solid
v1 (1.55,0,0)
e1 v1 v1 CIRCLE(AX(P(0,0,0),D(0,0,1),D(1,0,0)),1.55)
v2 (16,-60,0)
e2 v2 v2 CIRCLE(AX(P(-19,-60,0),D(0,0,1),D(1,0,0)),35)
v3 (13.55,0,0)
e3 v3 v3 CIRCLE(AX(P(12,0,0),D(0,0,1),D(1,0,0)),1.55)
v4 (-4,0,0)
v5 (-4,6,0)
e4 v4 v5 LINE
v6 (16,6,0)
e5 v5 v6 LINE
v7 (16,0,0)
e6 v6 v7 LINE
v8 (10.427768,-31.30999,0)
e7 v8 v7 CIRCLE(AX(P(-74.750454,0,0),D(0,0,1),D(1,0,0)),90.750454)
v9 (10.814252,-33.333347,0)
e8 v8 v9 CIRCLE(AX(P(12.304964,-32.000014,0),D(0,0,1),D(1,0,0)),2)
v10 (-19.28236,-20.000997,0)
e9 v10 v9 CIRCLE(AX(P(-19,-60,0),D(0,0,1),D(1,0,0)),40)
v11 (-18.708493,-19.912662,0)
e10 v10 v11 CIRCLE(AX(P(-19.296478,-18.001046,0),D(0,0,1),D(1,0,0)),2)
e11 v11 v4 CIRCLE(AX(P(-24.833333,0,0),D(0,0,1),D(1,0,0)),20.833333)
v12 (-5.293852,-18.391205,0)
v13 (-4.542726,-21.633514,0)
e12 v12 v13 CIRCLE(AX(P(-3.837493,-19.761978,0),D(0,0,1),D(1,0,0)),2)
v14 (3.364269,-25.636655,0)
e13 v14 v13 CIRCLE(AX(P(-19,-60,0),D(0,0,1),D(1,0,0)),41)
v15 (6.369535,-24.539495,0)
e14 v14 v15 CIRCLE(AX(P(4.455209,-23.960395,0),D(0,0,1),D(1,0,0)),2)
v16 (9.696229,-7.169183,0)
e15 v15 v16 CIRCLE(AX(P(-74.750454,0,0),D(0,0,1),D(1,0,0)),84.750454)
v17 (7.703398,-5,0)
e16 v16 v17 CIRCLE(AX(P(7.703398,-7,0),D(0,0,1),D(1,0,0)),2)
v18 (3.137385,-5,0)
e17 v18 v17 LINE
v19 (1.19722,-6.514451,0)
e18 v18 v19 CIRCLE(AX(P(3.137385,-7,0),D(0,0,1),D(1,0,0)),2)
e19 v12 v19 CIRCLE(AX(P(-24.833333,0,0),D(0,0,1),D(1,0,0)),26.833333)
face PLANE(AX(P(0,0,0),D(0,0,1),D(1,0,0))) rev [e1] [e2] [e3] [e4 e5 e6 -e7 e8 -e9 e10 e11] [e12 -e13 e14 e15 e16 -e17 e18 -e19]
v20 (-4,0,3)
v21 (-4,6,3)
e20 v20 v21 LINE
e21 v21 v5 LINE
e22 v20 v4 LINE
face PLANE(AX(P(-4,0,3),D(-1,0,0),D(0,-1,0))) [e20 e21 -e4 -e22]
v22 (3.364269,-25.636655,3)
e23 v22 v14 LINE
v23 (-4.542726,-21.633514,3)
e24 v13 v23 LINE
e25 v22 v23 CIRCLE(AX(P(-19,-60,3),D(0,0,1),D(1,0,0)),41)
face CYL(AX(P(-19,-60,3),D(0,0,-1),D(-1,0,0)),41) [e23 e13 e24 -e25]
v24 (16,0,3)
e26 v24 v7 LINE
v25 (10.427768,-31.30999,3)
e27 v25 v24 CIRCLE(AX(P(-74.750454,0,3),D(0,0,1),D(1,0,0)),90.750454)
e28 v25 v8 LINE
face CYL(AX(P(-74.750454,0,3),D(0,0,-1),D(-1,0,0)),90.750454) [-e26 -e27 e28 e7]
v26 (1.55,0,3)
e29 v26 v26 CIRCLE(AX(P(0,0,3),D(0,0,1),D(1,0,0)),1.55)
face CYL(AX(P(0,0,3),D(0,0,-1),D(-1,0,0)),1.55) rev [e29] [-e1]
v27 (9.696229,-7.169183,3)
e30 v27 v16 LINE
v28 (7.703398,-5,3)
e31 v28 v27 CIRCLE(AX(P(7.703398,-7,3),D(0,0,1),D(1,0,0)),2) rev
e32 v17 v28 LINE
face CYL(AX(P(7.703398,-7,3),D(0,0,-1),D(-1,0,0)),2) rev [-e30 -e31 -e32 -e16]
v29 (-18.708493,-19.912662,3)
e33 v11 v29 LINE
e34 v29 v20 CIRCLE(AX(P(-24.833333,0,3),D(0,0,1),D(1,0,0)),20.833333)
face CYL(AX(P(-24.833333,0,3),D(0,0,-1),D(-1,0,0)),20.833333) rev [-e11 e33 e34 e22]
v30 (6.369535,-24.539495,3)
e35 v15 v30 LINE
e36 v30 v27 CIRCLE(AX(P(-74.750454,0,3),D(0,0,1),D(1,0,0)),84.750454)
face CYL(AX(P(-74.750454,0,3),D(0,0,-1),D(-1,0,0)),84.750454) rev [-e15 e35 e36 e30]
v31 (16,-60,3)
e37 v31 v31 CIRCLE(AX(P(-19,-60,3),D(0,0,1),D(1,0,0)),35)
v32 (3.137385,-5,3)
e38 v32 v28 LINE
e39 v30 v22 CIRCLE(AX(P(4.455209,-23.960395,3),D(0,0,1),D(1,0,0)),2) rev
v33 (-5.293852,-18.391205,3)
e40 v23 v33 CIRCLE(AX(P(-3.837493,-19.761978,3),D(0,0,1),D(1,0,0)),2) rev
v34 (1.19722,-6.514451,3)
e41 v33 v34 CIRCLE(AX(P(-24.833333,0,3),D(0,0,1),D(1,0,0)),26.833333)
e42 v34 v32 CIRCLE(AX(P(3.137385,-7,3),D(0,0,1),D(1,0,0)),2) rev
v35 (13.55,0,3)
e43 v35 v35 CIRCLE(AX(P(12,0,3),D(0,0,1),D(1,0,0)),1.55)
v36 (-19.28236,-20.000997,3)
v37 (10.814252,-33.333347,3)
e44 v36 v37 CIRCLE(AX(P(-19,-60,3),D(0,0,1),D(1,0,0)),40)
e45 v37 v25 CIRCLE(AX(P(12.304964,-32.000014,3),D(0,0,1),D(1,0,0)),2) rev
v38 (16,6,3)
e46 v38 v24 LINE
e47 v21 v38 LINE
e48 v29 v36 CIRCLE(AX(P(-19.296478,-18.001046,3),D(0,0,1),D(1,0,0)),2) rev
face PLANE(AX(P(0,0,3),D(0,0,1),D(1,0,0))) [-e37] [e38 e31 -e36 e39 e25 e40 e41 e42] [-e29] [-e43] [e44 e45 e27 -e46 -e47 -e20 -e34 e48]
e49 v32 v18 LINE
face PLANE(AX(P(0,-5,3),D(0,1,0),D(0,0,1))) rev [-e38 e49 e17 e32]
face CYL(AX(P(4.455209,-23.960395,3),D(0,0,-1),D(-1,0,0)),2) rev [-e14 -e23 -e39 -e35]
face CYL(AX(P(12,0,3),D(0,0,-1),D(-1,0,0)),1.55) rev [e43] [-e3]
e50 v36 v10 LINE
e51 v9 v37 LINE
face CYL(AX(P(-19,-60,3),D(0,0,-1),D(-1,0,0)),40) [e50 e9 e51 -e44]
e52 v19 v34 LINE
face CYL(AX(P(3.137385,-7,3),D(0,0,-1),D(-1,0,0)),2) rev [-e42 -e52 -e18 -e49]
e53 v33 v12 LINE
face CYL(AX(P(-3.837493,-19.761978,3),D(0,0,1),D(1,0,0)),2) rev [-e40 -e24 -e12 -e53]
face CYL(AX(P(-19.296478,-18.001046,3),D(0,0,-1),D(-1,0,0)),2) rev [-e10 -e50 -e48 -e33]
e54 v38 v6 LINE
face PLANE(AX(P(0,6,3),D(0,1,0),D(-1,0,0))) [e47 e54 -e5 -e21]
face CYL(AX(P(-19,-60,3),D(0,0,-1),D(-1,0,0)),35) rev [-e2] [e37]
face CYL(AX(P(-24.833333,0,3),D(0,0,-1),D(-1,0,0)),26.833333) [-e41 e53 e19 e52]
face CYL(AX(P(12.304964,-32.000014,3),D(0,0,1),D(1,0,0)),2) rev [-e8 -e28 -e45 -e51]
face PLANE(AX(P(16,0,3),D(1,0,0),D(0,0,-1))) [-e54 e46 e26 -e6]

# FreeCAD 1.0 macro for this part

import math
import FreeCAD as App
import Part
import Sketcher


def edges_at(feature, points):
    """Names of the edges that pass closest to the given points."""
    edges = feature.Shape.Edges
    near = lambda p: min(range(len(edges)), key=lambda i: edges[i].distToShape(Part.Vertex(*p))[0])
    return sorted({f"Edge{near(p) + 1}" for p in points})

doc = App.newDocument("Part")
params = doc.addObject("Spreadsheet::Sheet", "Params")
for row, (alias, value) in enumerate([
    ("sketch1_diameter", "70 mm"),
    ("sketch1_radius", "40 mm"),
    ("sketch1_radius2", "41 mm"),
    ("sketch1_diameter2", "3.1 mm"),
    ("sketch1_width", "20 mm"),
    ("pad1_length", "3 mm"),
    ("fillet_radius", "2 mm"),
], start=1):
    params.set(f"A{row}", alias)
    params.set(f"B{row}", "=" + value)
    params.setAlias(f"B{row}", alias)

body = doc.addObject("PartDesign::Body", "Body")

sketch1 = body.newObject("Sketcher::SketchObject", "Sketch")
sketch1.AttachmentSupport = (doc.getObject("XY_Plane"), [""])
sketch1.MapMode = "FlatFace"
sketch1.addGeometry([
    Part.LineSegment(App.Vector(-4, 6, 0), App.Vector(-4, 0, 0)),
    Part.ArcOfCircle(Part.Circle(App.Vector(-24.8, 0, 0), App.Vector(0, 0, 1), 20.8), math.radians(-74), math.radians(0)),
    Part.ArcOfCircle(Part.Circle(App.Vector(-19, -60, 0), App.Vector(0, 0, 1), 40), math.radians(90), math.radians(404)),
    Part.ArcOfCircle(Part.Circle(App.Vector(-74.8, 0, 0), App.Vector(0, 0, 1), 90.8), math.radians(-21), math.radians(0)),
    Part.LineSegment(App.Vector(16, 0, 0), App.Vector(16, 6, 0)),
    Part.LineSegment(App.Vector(16, 6, 0), App.Vector(-4, 6, 0)),
    Part.Circle(App.Vector(-19, -60, 0), App.Vector(0, 0, 1), 35),
    Part.LineSegment(App.Vector(1.5, -5, 0), App.Vector(9.9, -5, 0)),
    Part.ArcOfCircle(Part.Circle(App.Vector(-74.8, 0, 0), App.Vector(0, 0, 1), 84.8), math.radians(-18.68), math.radians(-3.38)),
    Part.ArcOfCircle(Part.Circle(App.Vector(-19, -60, 0), App.Vector(0, 0, 1), 41), math.radians(53), math.radians(74)),
    Part.ArcOfCircle(Part.Circle(App.Vector(-24.8, 0, 0), App.Vector(0, 0, 1), 26.8), math.radians(-50), math.radians(-11)),
    Part.Circle(App.Vector(12, 0, 0), App.Vector(0, 0, 1), 1.6),
    Part.Circle(App.Vector(0, 0, 0), App.Vector(0, 0, 1), 1.6),
], False)
sketch1.addConstraint([
    Sketcher.Constraint("Tangent", 0, 2, 1, 2),
    Sketcher.Constraint("Coincident", 1, 1, 2, 1),
    Sketcher.Constraint("Coincident", 2, 2, 3, 1),
    Sketcher.Constraint("Tangent", 3, 2, 4, 1),
    Sketcher.Constraint("Coincident", 4, 2, 5, 1),
    Sketcher.Constraint("Coincident", 5, 2, 0, 1),
    Sketcher.Constraint("Coincident", 7, 2, 8, 2),
    Sketcher.Constraint("Coincident", 8, 1, 9, 1),
    Sketcher.Constraint("Coincident", 9, 2, 10, 1),
    Sketcher.Constraint("Coincident", 10, 2, 7, 1),
    Sketcher.Constraint("Vertical", 0),
    Sketcher.Constraint("Vertical", 4),
    Sketcher.Constraint("Horizontal", 5),
    Sketcher.Constraint("Horizontal", 7),
    Sketcher.Constraint("Coincident", 12, 3, -1, 1),
    Sketcher.Constraint("Coincident", 6, 3, 2, 3),
    Sketcher.Constraint("Coincident", 8, 3, 3, 3),
    Sketcher.Constraint("Coincident", 9, 3, 2, 3),
    Sketcher.Constraint("Coincident", 10, 3, 1, 3),
    Sketcher.Constraint("Equal", 11, 12),
    Sketcher.Constraint("PointOnObject", 1, 3, -1),
    Sketcher.Constraint("PointOnObject", 3, 3, -1),
    Sketcher.Constraint("PointOnObject", 11, 3, -1),
    Sketcher.Constraint("Vertical", 9, 3, 1, 1),
    Sketcher.Constraint("Diameter", 6, 70.0),
    Sketcher.Constraint("Radius", 2, 40.0),
    Sketcher.Constraint("Radius", 9, 41.0),
    Sketcher.Constraint("Diameter", 11, 3.1),
    Sketcher.Constraint("DistanceX", 5, 2, 5, 1, 20.0),
    Sketcher.Constraint("DistanceY", 0, 2, 0, 1, 6.0),
    Sketcher.Constraint("DistanceX", 2, 3, -1, 1, 19.0),
    Sketcher.Constraint("DistanceY", 2, 3, -1, 1, 60.0),
    Sketcher.Constraint("DistanceX", -1, 1, 11, 3, 12.0),
    Sketcher.Constraint("DistanceX", 0, 2, -1, 1, 4.0),
    Sketcher.Constraint("DistanceY", 7, 2, -1, 1, 5.0),
    Sketcher.Constraint("Radius", 3, 90.750454),
    Sketcher.Constraint("Radius", 8, 84.750454),
    Sketcher.Constraint("Radius", 10, 26.833333),
])
sketch1.setExpression("Constraints[24]", "Params.sketch1_diameter")
sketch1.setExpression("Constraints[25]", "Params.sketch1_radius")
sketch1.setExpression("Constraints[26]", "Params.sketch1_radius2")
sketch1.setExpression("Constraints[27]", "Params.sketch1_diameter2")
sketch1.setExpression("Constraints[28]", "Params.sketch1_width")
pad1 = body.newObject("PartDesign::Pad", "Pad")
pad1.Profile = sketch1
pad1.setExpression("Length", "Params.pad1_length")
doc.recompute()

fillet = body.newObject("PartDesign::Fillet", "Fillet")
fillet.Base = (pad1, edges_at(pad1, [
    (-19, -20, 1.5),
    (10, -32.45, 1.5),
    (-7.643, -20.604, 1.5),
    (5.533, -27.15, 1.5),
    (9.852, -5, 1.5),
    (1.53, -5, 1.5),
]))
fillet.setExpression("Radius", "Params.fillet_radius")

doc.recompute()
